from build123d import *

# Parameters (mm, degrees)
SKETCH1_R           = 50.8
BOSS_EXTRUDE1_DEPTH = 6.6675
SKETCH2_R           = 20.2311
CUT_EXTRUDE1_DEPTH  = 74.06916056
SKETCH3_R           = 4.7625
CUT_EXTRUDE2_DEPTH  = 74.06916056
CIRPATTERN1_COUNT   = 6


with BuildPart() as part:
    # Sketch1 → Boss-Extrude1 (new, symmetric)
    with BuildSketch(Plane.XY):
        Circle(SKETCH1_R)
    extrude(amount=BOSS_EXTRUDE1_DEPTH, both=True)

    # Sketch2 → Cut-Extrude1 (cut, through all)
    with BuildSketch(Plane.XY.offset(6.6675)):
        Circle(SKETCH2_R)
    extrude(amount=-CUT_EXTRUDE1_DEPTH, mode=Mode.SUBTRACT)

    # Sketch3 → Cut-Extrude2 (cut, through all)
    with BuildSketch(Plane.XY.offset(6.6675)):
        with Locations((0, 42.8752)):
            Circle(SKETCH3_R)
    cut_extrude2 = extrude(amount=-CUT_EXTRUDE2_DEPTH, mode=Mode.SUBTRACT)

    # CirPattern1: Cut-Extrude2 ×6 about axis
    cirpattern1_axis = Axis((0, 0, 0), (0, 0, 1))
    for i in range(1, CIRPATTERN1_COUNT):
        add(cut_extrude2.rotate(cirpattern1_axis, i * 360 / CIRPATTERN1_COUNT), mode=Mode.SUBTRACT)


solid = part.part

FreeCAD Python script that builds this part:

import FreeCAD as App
import Part
import Sketcher

V = App.Vector
Q = App.Units.Quantity

doc = App.newDocument("Part")
params = doc.addObject("Spreadsheet::Sheet", "Params")
for row, (alias, value) in enumerate([
    ("sketch1_diameter", "4 in"),
    ("pad1_length", "0.525 in"),
    ("sketch2_diameter", "1.593 in"),
    ("sketch3_diameter", "0.375 in"),
], start=1):
    params.set(f"A{row}", alias)
    params.set(f"B{row}", "=" + value)
    params.setAlias(f"B{row}", alias)

body = doc.addObject("PartDesign::Body", "Body")

# Sketch on XY plane
sketch1 = body.newObject("Sketcher::SketchObject", "Sketch")
sketch1.AttachmentSupport = (doc.getObject("XY_Plane"), [""])
sketch1.MapMode = "FlatFace"
sketch1.addGeometry(Part.Circle(V(0, 0, 0), V(0, 0, 1), 51), False)
sketch1.addConstraint([
    Sketcher.Constraint("Coincident", 0, 3, -1, 1),
    Sketcher.Constraint("Diameter", 0, Q("4 in")),
])
sketch1.setExpression("Constraints[1]", "Params.sketch1_diameter")
pad1 = body.newObject("PartDesign::Pad", "Pad")
pad1.Profile = sketch1
pad1.setExpression("Length", "Params.pad1_length")
pad1.Midplane = True

# Sketch on XY plane
sketch2 = body.newObject("Sketcher::SketchObject", "Sketch001")
sketch2.AttachmentSupport = (doc.getObject("XY_Plane"), [""])
sketch2.MapMode = "FlatFace"
sketch2.AttachmentOffset = App.Placement(V(0, 0, 0.2625 * 25.4), App.Rotation())
sketch2.addGeometry(Part.Circle(V(0, 0, 0), V(0, 0, 1), 20), False)
sketch2.addConstraint([
    Sketcher.Constraint("Coincident", 0, 3, -1, 1),
    Sketcher.Constraint("Diameter", 0, Q("1.593 in")),
])
sketch2.setExpression("Constraints[1]", "Params.sketch2_diameter")
pocket1 = body.newObject("PartDesign::Pocket", "Pocket")
pocket1.Profile = sketch2
pocket1.Type = "ThroughAll"

# Sketch on XY plane
sketch3 = body.newObject("Sketcher::SketchObject", "Sketch002")
sketch3.AttachmentSupport = (doc.getObject("XY_Plane"), [""])
sketch3.MapMode = "FlatFace"
sketch3.AttachmentOffset = App.Placement(V(0, 0, 0.2625 * 25.4), App.Rotation())
sketch3.addGeometry(Part.Circle(V(0, 42.9, 0), V(0, 0, 1), 4.8), False)
sketch3.addConstraint([
    Sketcher.Constraint("PointOnObject", 0, 3, -2),
    Sketcher.Constraint("Diameter", 0, Q("0.375 in")),
    Sketcher.Constraint("DistanceY", -1, 1, 0, 3, Q("1.688 in")),
])
sketch3.setExpression("Constraints[1]", "Params.sketch3_diameter")
pocket2 = body.newObject("PartDesign::Pocket", "Pocket001")
pocket2.Profile = sketch3
pocket2.Type = "ThroughAll"
doc.recompute()

polarpattern = body.newObject("PartDesign::PolarPattern", "PolarPattern")
polarpattern.Originals = [pocket2]
polarpattern.Axis = (doc.getObject("Z_Axis"), [""])
polarpattern.Angle = 360
polarpattern.Occurrences = 6
body.Tip = polarpattern

doc.recompute()
